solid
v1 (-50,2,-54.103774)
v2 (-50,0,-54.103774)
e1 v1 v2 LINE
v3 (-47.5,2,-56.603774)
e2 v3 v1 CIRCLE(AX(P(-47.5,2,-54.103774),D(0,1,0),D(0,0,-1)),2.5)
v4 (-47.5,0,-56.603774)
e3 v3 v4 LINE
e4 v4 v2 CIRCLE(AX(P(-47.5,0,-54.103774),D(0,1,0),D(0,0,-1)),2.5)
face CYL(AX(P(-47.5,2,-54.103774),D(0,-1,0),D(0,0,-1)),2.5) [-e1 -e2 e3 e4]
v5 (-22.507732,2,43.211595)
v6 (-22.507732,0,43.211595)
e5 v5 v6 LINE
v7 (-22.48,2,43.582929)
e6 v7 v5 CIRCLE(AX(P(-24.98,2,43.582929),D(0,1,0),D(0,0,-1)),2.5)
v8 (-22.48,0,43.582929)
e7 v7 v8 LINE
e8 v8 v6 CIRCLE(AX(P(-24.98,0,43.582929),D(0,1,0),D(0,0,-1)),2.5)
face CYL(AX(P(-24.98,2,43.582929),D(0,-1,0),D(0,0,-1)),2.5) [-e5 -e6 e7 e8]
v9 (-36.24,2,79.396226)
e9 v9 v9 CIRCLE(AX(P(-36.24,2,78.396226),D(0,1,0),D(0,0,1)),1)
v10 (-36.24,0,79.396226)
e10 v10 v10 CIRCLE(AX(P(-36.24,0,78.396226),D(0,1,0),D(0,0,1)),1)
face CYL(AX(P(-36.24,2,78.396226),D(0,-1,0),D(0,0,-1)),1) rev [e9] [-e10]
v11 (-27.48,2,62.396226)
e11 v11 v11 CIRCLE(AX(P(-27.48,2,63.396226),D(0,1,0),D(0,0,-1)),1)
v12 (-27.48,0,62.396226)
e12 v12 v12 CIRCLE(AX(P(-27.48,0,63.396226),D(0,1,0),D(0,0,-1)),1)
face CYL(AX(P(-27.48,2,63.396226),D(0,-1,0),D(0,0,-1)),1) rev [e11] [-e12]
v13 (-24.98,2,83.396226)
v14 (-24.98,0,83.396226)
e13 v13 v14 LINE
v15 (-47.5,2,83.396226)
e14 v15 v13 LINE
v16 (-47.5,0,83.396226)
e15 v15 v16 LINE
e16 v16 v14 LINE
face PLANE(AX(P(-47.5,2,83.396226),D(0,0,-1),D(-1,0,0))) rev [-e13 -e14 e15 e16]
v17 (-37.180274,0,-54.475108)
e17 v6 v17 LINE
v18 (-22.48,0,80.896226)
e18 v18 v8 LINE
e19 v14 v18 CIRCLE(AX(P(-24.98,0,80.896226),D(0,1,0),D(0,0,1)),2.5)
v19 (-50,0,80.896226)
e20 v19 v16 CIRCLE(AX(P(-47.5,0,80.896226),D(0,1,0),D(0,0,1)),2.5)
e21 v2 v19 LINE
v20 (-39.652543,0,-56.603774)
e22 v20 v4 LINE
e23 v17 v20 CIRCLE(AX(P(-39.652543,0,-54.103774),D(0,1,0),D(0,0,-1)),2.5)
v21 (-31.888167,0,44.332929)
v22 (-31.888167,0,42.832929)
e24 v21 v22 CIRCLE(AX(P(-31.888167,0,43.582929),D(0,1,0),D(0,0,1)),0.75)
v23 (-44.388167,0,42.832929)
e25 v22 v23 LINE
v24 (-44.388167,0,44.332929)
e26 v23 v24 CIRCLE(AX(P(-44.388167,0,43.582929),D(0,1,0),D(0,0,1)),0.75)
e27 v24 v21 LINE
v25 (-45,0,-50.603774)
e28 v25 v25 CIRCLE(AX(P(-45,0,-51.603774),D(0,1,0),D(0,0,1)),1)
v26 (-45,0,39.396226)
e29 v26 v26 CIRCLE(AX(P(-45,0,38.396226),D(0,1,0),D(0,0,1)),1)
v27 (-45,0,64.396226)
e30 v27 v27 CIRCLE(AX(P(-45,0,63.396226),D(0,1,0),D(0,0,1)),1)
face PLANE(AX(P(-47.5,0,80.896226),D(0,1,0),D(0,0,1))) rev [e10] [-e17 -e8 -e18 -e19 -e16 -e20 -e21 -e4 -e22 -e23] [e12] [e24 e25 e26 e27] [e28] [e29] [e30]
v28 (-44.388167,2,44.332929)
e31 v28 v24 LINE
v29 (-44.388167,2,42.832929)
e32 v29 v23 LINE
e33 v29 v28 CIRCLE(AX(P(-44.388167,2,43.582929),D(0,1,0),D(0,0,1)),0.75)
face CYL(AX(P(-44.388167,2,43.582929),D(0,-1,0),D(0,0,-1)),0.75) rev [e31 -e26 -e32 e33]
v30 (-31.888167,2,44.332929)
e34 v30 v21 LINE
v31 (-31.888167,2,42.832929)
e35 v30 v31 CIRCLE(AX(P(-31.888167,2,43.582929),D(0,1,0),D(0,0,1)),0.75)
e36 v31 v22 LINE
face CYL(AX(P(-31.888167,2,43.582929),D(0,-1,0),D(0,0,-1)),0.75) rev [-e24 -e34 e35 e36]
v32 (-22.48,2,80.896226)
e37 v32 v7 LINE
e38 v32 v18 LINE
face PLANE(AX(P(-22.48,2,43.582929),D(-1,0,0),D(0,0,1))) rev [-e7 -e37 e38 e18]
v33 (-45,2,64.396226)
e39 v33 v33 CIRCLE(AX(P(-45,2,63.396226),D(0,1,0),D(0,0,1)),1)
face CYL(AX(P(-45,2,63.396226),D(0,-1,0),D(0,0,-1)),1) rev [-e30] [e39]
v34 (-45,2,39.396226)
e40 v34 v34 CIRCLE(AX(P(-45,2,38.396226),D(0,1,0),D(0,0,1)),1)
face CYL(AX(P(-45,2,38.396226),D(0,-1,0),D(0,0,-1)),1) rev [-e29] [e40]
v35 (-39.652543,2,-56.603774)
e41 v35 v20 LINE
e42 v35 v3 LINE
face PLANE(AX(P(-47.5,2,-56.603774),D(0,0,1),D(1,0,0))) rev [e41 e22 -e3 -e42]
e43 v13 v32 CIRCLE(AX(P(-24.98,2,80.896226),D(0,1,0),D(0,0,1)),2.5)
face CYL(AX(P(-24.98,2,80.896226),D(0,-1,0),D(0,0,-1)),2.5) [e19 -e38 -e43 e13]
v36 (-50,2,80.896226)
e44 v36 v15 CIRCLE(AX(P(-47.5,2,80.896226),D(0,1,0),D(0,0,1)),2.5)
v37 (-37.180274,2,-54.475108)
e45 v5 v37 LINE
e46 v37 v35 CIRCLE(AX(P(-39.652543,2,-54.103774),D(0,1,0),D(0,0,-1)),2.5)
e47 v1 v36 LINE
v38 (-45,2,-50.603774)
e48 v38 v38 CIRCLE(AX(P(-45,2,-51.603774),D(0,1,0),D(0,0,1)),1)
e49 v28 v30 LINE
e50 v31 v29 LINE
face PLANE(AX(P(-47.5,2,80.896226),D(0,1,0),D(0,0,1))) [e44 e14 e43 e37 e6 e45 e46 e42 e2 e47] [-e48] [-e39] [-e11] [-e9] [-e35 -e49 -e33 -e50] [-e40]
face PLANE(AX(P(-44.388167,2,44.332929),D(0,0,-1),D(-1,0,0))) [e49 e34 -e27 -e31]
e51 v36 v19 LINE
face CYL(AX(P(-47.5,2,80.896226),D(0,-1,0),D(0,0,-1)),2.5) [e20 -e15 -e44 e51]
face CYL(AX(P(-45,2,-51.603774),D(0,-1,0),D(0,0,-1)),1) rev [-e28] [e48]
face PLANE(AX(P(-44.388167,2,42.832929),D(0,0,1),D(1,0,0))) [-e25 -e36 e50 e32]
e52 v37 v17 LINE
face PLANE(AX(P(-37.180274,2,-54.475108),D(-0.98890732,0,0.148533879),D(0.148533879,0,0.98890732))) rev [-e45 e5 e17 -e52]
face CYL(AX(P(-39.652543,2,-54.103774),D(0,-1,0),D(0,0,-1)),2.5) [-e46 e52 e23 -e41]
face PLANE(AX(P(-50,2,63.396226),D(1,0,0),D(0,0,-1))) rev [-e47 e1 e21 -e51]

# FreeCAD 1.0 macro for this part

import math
import FreeCAD as App
import Part
import Sketcher

doc = App.newDocument("Part")
body = doc.addObject("PartDesign::Body", "Body")

# Sketch on XZ plane
sketch1 = doc.addObject("Sketcher::SketchObject", "Sketch")
body.addObject(sketch1)
sketch1.AttachmentSupport = (doc.XZ_Plane, [""])
sketch1.MapMode = "FlatFace"
sketch1.addGeometry([
    Part.ArcOfCircle(Part.Circle(App.Vector(-47.5, -54.1, 0), App.Vector(0, 0, 1), 2.5), math.radians(180), math.radians(270)),  # 0
    Part.LineSegment(App.Vector(-50, -54.1, 0), App.Vector(-50, 80.9, 0)),  # 1
    Part.ArcOfCircle(Part.Circle(App.Vector(-47.5, 80.9, 0), App.Vector(0, 0, 1), 2.5), math.radians(90), math.radians(180)),  # 2
    Part.LineSegment(App.Vector(-47.5, 83.4, 0), App.Vector(-24.98, 83.4, 0)),  # 3
    Part.ArcOfCircle(Part.Circle(App.Vector(-24.98, 80.9, 0), App.Vector(0, 0, 1), 2.5), math.radians(0), math.radians(90)),  # 4
    Part.LineSegment(App.Vector(-22.48, 80.9, 0), App.Vector(-22.48, 43.58, 0)),  # 5
    Part.ArcOfCircle(Part.Circle(App.Vector(-24.98, 43.58, 0), App.Vector(0, 0, 1), 2.5), math.radians(-8.54), math.radians(0)),  # 6
    Part.LineSegment(App.Vector(-22.51, 43.21, 0), App.Vector(-37.18, -54.48, 0)),  # 7
    Part.ArcOfCircle(Part.Circle(App.Vector(-39.65, -54.1, 0), App.Vector(0, 0, 1), 2.5), math.radians(-90), math.radians(-9)),  # 8
    Part.LineSegment(App.Vector(-39.65, -56.6, 0), App.Vector(-47.5, -56.6, 0)),  # 9
    Part.Circle(App.Vector(-27.48, 63.4, 0), App.Vector(0, 0, 1), 1),  # 10
    Part.Circle(App.Vector(-36.24, 78.4, 0), App.Vector(0, 0, 1), 1),  # 11
    Part.Circle(App.Vector(-45, 63.4, 0), App.Vector(0, 0, 1), 1),  # 12
    Part.LineSegment(App.Vector(-44.39, 42.83, 0), App.Vector(-31.89, 42.83, 0)),  # 13
    Part.ArcOfCircle(Part.Circle(App.Vector(-31.89, 43.58, 0), App.Vector(0, 0, 1), 0.75), math.radians(-90), math.radians(90)),  # 14
    Part.LineSegment(App.Vector(-31.89, 44.33, 0), App.Vector(-44.39, 44.33, 0)),  # 15
    Part.ArcOfCircle(Part.Circle(App.Vector(-44.39, 43.58, 0), App.Vector(0, 0, 1), 0.75), math.radians(90), math.radians(270)),  # 16
    Part.Circle(App.Vector(-45, 38.4, 0), App.Vector(0, 0, 1), 1),  # 17
    Part.Circle(App.Vector(-45, -51.6, 0), App.Vector(0, 0, 1), 1),  # 18
], False)
sketch1.addConstraint([
    Sketcher.Constraint("Tangent", 0, 1, 1, 1),
    Sketcher.Constraint("Tangent", 1, 2, 2, 2),
    Sketcher.Constraint("Tangent", 2, 1, 3, 1),
    Sketcher.Constraint("Tangent", 3, 2, 4, 2),
    Sketcher.Constraint("Tangent", 4, 1, 5, 1),
    Sketcher.Constraint("Tangent", 5, 2, 6, 2),
    Sketcher.Constraint("Tangent", 6, 1, 7, 1),
    Sketcher.Constraint("Tangent", 7, 2, 8, 2),
    Sketcher.Constraint("Tangent", 8, 1, 9, 1),
    Sketcher.Constraint("Tangent", 9, 2, 0, 2),
    Sketcher.Constraint("Tangent", 13, 2, 14, 1),
    Sketcher.Constraint("Tangent", 14, 2, 15, 1),
    Sketcher.Constraint("Tangent", 15, 2, 16, 1),
    Sketcher.Constraint("Tangent", 16, 2, 13, 1),
    Sketcher.Constraint("Vertical", 1),
    Sketcher.Constraint("Horizontal", 3),
    Sketcher.Constraint("Vertical", 5),
    Sketcher.Constraint("Horizontal", 9),
    Sketcher.Constraint("Horizontal", 13),
    Sketcher.Constraint("Horizontal", 15),
    Sketcher.Constraint("Equal", 0, 2),
    Sketcher.Constraint("Equal", 2, 4),
    Sketcher.Constraint("Equal", 4, 6),
    Sketcher.Constraint("Equal", 6, 8),
    Sketcher.Constraint("Equal", 10, 11),
    Sketcher.Constraint("Equal", 11, 12),
    Sketcher.Constraint("Equal", 12, 17),
    Sketcher.Constraint("Equal", 17, 18),
    Sketcher.Constraint("Horizontal", 10, 3, 12, 3),
    Sketcher.Constraint("Horizontal", 6, 3, 14, 3),
    Sketcher.Constraint("Vertical", 12, 3, 17, 3),
    Sketcher.Constraint("Vertical", 17, 3, 18, 3),
    Sketcher.Constraint("Diameter", 10, 2.0),
    Sketcher.Constraint("Radius", 0, 2.5),
    Sketcher.Constraint("DistanceY", 1, 1, 1, 2, 135.0),
    Sketcher.Constraint("Radius", 14, 0.75),
    Sketcher.Constraint("DistanceX", 13, 1, 13, 2, 12.5),
    Sketcher.Constraint("DistanceX", 12, 3, -1, 1, 45.0),
    Sketcher.Constraint("DistanceX", 0, 1, -1, 1, 50.0),
    Sketcher.Constraint("DistanceY", 10, 3, 11, 3, 15.0),
    Sketcher.Constraint("DistanceY", 17, 3, 12, 3, 25.0),
    Sketcher.Constraint("DistanceY", 18, 3, 17, 3, 90.0),
    Sketcher.Constraint("DistanceY", 11, 3, 2, 1, 5.0),
    Sketcher.Constraint("DistanceX", 10, 3, 4, 1, 5.0),
    Sketcher.Constraint("DistanceX", 3, 1, 3, 2, 22.52),
    Sketcher.Constraint("DistanceX", 11, 3, -1, 1, 36.24),
    Sketcher.Constraint("DistanceX", 9, 2, 9, 1, 7.847457),
    Sketcher.Constraint("DistanceY", 5, 2, 5, 1, 37.313297),
    Sketcher.Constraint("DistanceY", -1, 1, 6, 3, 43.582929),
    Sketcher.Constraint("DistanceX", 14, 3, -1, 1, 31.888167),
])
pad1 = doc.addObject("PartDesign::Pad", "Pad")
body.addObject(pad1)
pad1.Profile = sketch1
pad1.Length = 2
pad1.Reversed = True

doc.recompute()
